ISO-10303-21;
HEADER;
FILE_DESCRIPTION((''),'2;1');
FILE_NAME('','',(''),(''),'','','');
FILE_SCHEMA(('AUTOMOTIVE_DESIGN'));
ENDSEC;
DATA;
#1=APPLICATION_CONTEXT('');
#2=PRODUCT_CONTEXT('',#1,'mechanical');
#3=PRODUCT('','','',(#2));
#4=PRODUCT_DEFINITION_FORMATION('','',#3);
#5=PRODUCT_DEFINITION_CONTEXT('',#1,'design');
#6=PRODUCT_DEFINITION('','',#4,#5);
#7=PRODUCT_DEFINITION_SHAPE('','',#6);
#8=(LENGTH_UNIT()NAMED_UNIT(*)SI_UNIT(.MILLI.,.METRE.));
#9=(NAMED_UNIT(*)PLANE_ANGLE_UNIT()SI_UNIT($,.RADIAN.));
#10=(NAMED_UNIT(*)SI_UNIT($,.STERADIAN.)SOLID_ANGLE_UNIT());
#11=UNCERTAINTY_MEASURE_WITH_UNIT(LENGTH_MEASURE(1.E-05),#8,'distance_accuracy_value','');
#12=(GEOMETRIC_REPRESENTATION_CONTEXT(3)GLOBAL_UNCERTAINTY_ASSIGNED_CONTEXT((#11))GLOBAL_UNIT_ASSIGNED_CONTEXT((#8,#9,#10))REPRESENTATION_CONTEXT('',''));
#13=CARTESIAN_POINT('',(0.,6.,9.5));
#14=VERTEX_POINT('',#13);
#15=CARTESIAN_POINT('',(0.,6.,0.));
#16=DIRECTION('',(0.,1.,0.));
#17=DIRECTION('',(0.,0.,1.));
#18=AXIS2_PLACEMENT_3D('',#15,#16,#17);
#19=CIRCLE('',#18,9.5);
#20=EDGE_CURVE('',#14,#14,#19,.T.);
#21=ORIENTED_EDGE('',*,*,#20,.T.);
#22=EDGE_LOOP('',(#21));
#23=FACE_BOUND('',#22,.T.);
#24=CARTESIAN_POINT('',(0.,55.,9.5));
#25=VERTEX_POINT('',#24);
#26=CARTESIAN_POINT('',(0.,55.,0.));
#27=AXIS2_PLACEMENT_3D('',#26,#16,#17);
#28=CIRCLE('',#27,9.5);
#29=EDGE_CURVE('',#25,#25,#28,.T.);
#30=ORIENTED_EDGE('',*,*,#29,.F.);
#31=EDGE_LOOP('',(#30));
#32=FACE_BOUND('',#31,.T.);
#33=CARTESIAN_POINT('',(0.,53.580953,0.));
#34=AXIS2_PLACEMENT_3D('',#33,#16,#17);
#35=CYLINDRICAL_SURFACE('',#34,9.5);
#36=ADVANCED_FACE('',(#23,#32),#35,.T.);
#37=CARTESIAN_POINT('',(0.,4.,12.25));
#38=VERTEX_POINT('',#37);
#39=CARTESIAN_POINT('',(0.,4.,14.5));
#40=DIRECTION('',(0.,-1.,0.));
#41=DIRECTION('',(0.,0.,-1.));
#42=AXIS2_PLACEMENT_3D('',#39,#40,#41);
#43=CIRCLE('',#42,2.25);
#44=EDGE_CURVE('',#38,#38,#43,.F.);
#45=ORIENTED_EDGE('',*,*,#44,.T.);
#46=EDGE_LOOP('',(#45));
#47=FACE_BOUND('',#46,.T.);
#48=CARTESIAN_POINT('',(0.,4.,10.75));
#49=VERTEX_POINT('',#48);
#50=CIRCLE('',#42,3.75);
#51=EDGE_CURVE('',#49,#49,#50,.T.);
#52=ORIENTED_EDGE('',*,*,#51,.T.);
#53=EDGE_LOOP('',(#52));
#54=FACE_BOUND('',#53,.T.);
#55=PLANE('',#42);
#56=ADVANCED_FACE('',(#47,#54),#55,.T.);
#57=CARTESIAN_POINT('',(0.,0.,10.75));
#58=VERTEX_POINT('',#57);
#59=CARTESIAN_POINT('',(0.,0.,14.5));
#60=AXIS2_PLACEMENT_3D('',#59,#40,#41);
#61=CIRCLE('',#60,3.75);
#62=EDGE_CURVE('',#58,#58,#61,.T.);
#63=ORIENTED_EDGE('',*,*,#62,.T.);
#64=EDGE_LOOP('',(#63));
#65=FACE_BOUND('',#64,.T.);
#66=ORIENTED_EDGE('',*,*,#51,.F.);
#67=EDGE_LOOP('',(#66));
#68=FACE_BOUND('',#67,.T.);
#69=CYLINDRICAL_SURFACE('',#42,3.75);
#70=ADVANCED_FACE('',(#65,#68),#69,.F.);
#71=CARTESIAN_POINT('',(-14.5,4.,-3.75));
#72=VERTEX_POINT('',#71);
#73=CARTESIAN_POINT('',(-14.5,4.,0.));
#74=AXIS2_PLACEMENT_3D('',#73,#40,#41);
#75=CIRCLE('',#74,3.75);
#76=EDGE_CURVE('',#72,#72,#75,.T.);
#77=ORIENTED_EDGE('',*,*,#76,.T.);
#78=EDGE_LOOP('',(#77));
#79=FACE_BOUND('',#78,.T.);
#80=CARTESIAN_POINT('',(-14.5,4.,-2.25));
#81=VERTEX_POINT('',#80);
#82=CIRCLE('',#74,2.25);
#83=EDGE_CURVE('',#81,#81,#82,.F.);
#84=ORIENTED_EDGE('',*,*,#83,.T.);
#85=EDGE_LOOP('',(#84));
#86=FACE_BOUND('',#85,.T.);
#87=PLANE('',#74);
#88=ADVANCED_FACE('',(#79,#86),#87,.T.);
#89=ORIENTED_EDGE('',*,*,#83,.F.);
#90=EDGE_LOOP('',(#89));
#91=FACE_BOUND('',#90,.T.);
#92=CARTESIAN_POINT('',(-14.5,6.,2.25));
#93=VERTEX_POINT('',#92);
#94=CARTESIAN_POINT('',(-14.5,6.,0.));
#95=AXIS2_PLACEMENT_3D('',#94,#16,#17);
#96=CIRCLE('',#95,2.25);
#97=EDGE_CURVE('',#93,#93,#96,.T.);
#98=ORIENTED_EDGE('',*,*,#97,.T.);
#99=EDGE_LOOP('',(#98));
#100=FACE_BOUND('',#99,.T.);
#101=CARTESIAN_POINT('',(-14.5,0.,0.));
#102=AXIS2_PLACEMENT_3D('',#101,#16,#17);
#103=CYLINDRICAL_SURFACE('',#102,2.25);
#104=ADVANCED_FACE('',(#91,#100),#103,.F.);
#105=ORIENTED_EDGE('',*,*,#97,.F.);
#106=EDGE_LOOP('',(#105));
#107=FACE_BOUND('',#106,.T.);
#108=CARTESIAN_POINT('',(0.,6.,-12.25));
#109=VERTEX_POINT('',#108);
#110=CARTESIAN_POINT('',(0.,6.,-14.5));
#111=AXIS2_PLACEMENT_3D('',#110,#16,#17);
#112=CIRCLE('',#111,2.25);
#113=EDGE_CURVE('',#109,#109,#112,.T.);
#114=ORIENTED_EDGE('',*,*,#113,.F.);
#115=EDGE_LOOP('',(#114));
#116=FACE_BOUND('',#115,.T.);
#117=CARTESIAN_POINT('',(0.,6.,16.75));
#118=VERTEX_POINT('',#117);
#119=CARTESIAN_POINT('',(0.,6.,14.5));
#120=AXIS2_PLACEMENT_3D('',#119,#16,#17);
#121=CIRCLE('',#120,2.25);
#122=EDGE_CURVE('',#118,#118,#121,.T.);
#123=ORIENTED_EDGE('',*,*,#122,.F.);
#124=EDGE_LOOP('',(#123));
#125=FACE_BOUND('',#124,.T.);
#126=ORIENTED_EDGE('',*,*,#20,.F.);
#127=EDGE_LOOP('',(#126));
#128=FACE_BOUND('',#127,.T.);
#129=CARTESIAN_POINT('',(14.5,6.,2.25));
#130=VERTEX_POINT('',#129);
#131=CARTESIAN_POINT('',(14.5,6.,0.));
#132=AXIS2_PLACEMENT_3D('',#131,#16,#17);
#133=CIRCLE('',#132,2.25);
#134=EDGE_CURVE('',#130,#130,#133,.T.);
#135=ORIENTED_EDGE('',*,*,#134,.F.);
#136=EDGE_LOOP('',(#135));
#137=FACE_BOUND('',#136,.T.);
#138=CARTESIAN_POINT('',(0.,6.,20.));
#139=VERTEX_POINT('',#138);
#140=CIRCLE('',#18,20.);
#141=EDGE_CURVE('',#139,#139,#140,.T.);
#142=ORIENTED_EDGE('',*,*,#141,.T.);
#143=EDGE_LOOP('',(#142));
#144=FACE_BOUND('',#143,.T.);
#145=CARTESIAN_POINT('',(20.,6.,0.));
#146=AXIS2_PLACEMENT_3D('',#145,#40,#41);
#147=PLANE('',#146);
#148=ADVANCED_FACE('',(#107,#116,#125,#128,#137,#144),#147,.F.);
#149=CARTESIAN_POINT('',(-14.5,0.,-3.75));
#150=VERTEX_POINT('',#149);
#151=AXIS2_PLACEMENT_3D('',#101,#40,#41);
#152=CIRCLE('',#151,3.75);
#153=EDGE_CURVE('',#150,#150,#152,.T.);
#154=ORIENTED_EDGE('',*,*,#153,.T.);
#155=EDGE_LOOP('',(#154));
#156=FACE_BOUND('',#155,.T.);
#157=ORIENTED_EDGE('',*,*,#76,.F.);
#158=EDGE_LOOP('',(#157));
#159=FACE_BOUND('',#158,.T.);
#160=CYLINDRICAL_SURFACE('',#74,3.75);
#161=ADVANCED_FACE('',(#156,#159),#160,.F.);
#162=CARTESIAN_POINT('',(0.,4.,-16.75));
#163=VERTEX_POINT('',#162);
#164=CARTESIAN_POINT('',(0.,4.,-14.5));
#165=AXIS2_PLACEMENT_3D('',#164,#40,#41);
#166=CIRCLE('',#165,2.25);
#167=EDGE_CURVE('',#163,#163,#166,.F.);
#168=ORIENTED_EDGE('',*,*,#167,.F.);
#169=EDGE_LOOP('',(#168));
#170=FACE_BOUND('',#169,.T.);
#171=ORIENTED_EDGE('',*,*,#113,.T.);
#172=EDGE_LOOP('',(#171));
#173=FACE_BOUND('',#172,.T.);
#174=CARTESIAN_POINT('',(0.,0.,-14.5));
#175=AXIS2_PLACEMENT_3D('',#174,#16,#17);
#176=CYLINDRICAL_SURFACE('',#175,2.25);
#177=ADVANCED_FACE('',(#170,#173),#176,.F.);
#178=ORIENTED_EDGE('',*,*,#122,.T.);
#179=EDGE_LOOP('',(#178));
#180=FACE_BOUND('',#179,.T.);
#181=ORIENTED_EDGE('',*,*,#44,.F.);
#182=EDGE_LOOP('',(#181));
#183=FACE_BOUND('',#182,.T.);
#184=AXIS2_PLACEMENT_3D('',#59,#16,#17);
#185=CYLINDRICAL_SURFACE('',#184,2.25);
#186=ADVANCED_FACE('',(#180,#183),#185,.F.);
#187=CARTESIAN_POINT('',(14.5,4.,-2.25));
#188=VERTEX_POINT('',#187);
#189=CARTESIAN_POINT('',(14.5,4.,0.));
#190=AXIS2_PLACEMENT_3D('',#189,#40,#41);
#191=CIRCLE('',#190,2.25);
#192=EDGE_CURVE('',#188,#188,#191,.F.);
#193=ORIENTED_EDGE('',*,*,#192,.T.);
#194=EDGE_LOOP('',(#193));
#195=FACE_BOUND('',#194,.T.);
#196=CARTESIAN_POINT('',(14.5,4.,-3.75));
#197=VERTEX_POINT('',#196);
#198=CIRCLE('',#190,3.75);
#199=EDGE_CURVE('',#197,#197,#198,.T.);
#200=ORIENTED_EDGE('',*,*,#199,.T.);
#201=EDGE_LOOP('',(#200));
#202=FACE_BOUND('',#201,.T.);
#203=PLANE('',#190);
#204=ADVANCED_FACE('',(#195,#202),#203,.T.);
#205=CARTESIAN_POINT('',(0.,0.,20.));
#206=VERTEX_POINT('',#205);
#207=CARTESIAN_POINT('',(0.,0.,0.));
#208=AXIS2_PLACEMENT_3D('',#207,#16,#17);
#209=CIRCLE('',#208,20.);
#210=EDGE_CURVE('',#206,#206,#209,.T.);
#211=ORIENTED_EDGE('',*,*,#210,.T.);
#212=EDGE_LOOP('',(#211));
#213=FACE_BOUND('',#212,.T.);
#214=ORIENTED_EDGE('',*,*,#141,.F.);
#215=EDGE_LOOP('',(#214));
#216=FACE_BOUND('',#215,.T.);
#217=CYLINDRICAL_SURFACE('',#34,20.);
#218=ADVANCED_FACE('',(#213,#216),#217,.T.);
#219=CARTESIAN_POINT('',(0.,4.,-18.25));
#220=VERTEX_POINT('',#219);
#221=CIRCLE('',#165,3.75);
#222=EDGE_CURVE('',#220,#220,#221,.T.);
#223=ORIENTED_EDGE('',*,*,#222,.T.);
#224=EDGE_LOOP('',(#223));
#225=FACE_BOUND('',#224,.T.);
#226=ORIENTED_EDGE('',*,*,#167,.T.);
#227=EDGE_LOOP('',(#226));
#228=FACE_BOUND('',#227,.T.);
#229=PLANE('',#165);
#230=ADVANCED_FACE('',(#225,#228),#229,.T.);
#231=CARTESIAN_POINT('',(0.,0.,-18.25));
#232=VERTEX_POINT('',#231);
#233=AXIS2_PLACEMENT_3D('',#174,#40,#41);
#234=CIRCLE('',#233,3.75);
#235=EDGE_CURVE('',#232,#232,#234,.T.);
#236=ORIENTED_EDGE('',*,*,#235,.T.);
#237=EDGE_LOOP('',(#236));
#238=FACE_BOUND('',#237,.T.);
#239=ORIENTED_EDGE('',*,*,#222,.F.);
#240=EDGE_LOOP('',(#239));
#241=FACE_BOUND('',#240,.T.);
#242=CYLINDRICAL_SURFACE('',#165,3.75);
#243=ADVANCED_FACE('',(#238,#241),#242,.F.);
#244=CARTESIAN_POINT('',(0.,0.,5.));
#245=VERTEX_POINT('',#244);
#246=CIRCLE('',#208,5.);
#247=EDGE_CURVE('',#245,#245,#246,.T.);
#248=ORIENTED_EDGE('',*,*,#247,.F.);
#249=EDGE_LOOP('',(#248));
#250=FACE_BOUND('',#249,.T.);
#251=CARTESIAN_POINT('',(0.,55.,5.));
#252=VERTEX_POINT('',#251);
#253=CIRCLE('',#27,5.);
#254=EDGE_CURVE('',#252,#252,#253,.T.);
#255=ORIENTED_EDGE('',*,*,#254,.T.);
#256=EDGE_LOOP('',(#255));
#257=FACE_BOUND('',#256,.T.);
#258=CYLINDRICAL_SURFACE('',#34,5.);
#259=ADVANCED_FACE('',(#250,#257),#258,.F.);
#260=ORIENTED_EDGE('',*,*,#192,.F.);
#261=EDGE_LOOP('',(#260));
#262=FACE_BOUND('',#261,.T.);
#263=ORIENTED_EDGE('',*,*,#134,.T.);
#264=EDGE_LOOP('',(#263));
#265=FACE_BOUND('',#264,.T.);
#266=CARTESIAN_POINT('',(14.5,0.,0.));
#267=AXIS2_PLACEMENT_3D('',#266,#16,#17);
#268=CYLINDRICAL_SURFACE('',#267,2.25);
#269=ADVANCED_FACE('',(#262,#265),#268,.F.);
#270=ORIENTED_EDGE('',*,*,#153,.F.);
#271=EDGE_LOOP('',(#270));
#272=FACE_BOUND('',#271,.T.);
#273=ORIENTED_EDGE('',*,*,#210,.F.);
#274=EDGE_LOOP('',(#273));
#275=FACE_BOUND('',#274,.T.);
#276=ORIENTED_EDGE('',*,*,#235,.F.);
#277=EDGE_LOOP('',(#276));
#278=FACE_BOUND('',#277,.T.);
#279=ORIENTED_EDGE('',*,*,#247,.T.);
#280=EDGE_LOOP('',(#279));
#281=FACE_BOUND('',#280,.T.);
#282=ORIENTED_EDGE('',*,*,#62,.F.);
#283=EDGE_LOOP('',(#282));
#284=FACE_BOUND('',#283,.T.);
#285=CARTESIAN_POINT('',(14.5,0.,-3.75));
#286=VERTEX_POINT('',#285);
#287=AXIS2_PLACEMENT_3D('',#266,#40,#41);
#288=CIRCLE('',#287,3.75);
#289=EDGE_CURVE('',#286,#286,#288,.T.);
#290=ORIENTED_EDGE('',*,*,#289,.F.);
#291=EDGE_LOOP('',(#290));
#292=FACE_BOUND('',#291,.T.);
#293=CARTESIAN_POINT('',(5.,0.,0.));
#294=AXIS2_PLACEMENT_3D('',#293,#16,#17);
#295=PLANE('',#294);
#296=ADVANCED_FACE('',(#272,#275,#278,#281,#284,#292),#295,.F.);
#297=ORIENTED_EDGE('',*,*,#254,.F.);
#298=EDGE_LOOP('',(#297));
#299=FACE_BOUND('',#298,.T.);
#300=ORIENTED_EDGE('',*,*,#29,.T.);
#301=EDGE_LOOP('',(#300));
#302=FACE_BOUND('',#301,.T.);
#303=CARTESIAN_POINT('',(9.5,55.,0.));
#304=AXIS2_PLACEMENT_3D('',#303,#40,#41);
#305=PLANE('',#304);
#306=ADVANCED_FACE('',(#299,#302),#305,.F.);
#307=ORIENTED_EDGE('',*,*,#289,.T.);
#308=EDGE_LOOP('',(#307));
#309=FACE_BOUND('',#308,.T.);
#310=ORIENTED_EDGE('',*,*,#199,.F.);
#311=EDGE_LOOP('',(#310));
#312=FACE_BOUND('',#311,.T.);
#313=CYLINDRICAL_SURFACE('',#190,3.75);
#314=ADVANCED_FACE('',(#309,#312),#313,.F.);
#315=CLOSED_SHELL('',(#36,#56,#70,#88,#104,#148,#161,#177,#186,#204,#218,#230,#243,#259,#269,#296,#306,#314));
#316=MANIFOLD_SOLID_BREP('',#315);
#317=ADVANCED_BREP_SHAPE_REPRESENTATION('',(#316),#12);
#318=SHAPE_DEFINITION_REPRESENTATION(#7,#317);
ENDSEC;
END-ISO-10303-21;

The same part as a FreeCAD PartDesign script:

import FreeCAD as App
import Part
import Sketcher

V = App.Vector
Q = App.Units.Quantity

doc = App.newDocument("Part")
params = doc.addObject("Spreadsheet::Sheet", "Params")
for row, (alias, value) in enumerate([
    ("sketch1_width", "15 mm"),
    ("sketch1_height", "55 mm"),
    ("sketch1_height2", "6 mm"),
    ("sketch1_width2", "10.5 mm"),
    ("revolution_angle", "360 deg"),
    ("sketch2_diameter", "4.5 mm"),
    ("sketch3_diameter", "7.5 mm"),
    ("pocket2_length", "4 mm"),
], start=1):
    params.set(f"A{row}", alias)
    params.set(f"B{row}", "=" + value)
    params.setAlias(f"B{row}", alias)

body = doc.addObject("PartDesign::Body", "Body")

# Sketch on XY plane
sketch1 = body.newObject("Sketcher::SketchObject", "Sketch")
sketch1.AttachmentSupport = (doc.getObject("XY_Plane"), [""])
sketch1.MapMode = "FlatFace"
sketch1.addGeometry([
    Part.LineSegment(V(5, 55, 0), V(5, 0, 0)),  # 0
    Part.LineSegment(V(5, 0, 0), V(20, 0, 0)),  # 1
    Part.LineSegment(V(20, 0, 0), V(20, 6, 0)),  # 2
    Part.LineSegment(V(20, 6, 0), V(9.5, 6, 0)),  # 3
    Part.LineSegment(V(9.5, 6, 0), V(9.5, 55, 0)),  # 4
    Part.LineSegment(V(9.5, 55, 0), V(5, 55, 0)),  # 5
], False)
sketch1.addConstraint([
    Sketcher.Constraint("Coincident", 0, 2, 1, 1),
    Sketcher.Constraint("Coincident", 1, 2, 2, 1),
    Sketcher.Constraint("Coincident", 2, 2, 3, 1),
    Sketcher.Constraint("Coincident", 3, 2, 4, 1),
    Sketcher.Constraint("Coincident", 4, 2, 5, 1),
    Sketcher.Constraint("Coincident", 5, 2, 0, 1),
    Sketcher.Constraint("Vertical", 0),
    Sketcher.Constraint("Horizontal", 1),
    Sketcher.Constraint("Vertical", 2),
    Sketcher.Constraint("Horizontal", 3),
    Sketcher.Constraint("Vertical", 4),
    Sketcher.Constraint("Horizontal", 5),
    Sketcher.Constraint("PointOnObject", 0, 2, -1),
    Sketcher.Constraint("DistanceX", 1, 1, 1, 2, Q("15 mm")),
    Sketcher.Constraint("DistanceY", 0, 2, 0, 1, Q("55 mm")),
    Sketcher.Constraint("DistanceY", 2, 1, 2, 2, Q("6 mm")),
    Sketcher.Constraint("DistanceX", 3, 2, 3, 1, Q("10.5 mm")),
    Sketcher.Constraint("DistanceX", -1, 1, 0, 2, Q("5 mm")),
])
sketch1.setExpression("Constraints[13]", "Params.sketch1_width")
sketch1.setExpression("Constraints[14]", "Params.sketch1_height")
sketch1.setExpression("Constraints[15]", "Params.sketch1_height2")
sketch1.setExpression("Constraints[16]", "Params.sketch1_width2")
revolution = body.newObject("PartDesign::Revolution", "Revolution")
revolution.Profile = sketch1
revolution.ReferenceAxis = (sketch1, ["V_Axis"])
revolution.setExpression("Angle", "Params.revolution_angle")

# Sketch on XZ plane
sketch2 = body.newObject("Sketcher::SketchObject", "Sketch001")
sketch2.AttachmentSupport = (doc.getObject("XZ_Plane"), [""])
sketch2.MapMode = "FlatFace"
sketch2.AttachmentOffset = App.Placement(V(0, 0, -6), App.Rotation())
sketch2.addGeometry([
    Part.Circle(V(14.5, 0, 0), V(0, 0, 1), 2.2),
    Part.Circle(V(0, 14.5, 0), V(0, 0, 1), 2.2),
    Part.Circle(V(-14.5, 0, 0), V(0, 0, 1), 2.2),
    Part.Circle(V(0, -14.5, 0), V(0, 0, 1), 2.2),
], False)
sketch2.addConstraint([
    Sketcher.Constraint("Equal", 0, 1),
    Sketcher.Constraint("Equal", 1, 2),
    Sketcher.Constraint("Equal", 2, 3),
    Sketcher.Constraint("Symmetric", 0, 3, 2, 3, -1, 1),
    Sketcher.Constraint("Symmetric", 1, 3, 3, 3, -1, 1),
    Sketcher.Constraint("PointOnObject", 0, 3, -1),
    Sketcher.Constraint("PointOnObject", 1, 3, -2),
    Sketcher.Constraint("Diameter", 0, Q("4.5 mm")),
    Sketcher.Constraint("DistanceX", 2, 3, 0, 3, Q("29 mm")),
    Sketcher.Constraint("DistanceY", 3, 3, 1, 3, Q("29 mm")),
])
sketch2.setExpression("Constraints[7]", "Params.sketch2_diameter")
pocket1 = body.newObject("PartDesign::Pocket", "Pocket")
pocket1.Profile = sketch2
pocket1.Type = "ThroughAll"
pocket1.Reversed = True

# Sketch on XZ plane
sketch3 = body.newObject("Sketcher::SketchObject", "Sketch002")
sketch3.AttachmentSupport = (doc.getObject("XZ_Plane"), [""])
sketch3.MapMode = "FlatFace"
sketch3.addGeometry([
    Part.Circle(V(-14.5, 0, 0), V(0, 0, 1), 3.8),
    Part.Circle(V(0, 14.5, 0), V(0, 0, 1), 3.8),
    Part.Circle(V(14.5, 0, 0), V(0, 0, 1), 3.8),
    Part.Circle(V(0, -14.5, 0), V(0, 0, 1), 3.8),
], False)
sketch3.addConstraint([
    Sketcher.Constraint("Equal", 0, 1),
    Sketcher.Constraint("Equal", 1, 2),
    Sketcher.Constraint("Equal", 2, 3),
    Sketcher.Constraint("Symmetric", 0, 3, 2, 3, -1, 1),
    Sketcher.Constraint("Symmetric", 1, 3, 3, 3, -1, 1),
    Sketcher.Constraint("PointOnObject", 0, 3, -1),
    Sketcher.Constraint("PointOnObject", 1, 3, -2),
    Sketcher.Constraint("Diameter", 0, Q("7.5 mm")),
    Sketcher.Constraint("DistanceX", 0, 3, 2, 3, Q("29 mm")),
    Sketcher.Constraint("DistanceY", 3, 3, 1, 3, Q("29 mm")),
])
sketch3.setExpression("Constraints[7]", "Params.sketch3_diameter")
pocket2 = body.newObject("PartDesign::Pocket", "Pocket001")
pocket2.Profile = sketch3
pocket2.setExpression("Length", "Params.pocket2_length")

doc.recompute()
